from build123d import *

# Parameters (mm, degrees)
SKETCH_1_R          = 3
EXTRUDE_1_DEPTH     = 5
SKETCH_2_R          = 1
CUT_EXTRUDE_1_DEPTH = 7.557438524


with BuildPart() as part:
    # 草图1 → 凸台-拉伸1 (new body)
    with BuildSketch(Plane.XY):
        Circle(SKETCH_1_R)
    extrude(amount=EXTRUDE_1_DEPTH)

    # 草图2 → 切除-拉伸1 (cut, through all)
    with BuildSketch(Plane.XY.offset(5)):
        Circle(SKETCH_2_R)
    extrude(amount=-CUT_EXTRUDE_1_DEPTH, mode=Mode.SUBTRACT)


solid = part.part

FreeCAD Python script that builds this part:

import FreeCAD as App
import Part
import Sketcher
Q = App.Units.Quantity

doc = App.newDocument("Part")
body = doc.addObject("PartDesign::Body", "Body")

# Sketch on XY plane
sketch1 = body.newObject("Sketcher::SketchObject", "Sketch")
sketch1.AttachmentSupport = (doc.getObject("XY_Plane"), [""])
sketch1.MapMode = "FlatFace"
sketch1.addGeometry(Part.Circle(App.Vector(0, 0, 0), App.Vector(0, 0, 1), 3), False)
sketch1.addConstraint([
    Sketcher.Constraint("Coincident", 0, 3, -1, 1),
    Sketcher.Constraint("Diameter", 0, Q("6 mm")),
])
pad1 = body.newObject("PartDesign::Pad", "Pad")
pad1.Profile = sketch1
pad1.Length = 5

# Sketch on XY plane
sketch2 = body.newObject("Sketcher::SketchObject", "Sketch001")
sketch2.AttachmentSupport = (doc.getObject("XY_Plane"), [""])
sketch2.MapMode = "FlatFace"
sketch2.AttachmentOffset = App.Placement(App.Vector(0, 0, 5), App.Rotation())
sketch2.addGeometry(Part.Circle(App.Vector(0, 0, 0), App.Vector(0, 0, 1), 1), False)
sketch2.addConstraint([
    Sketcher.Constraint("Coincident", 0, 3, -1, 1),
    Sketcher.Constraint("Diameter", 0, Q("2 mm")),
])
pocket1 = body.newObject("PartDesign::Pocket", "Pocket")
pocket1.Profile = sketch2
pocket1.Type = "ThroughAll"

doc.recompute()
